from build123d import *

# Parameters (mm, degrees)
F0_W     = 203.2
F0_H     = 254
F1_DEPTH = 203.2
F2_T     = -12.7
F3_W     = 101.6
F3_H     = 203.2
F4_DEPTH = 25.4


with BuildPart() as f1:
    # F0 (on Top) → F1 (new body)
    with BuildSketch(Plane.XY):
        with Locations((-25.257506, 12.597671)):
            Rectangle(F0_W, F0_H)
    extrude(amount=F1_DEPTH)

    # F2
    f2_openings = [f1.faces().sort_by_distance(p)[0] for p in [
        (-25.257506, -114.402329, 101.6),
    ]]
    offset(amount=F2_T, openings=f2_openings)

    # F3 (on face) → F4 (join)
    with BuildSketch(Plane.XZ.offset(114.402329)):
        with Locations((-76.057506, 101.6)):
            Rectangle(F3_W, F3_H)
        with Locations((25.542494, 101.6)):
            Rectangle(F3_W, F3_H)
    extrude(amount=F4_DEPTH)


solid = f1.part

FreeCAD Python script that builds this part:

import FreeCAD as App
import Part
import Sketcher
from FreeCAD import Vector
Q = App.Units.Quantity


def faces_at(feature, points):
    """Names of the faces that lie closest to the given points."""
    faces = feature.Shape.Faces
    near = lambda p: min(range(len(faces)), key=lambda i: faces[i].distToShape(Part.Vertex(*p))[0])
    return sorted({f"Face{near(p) + 1}" for p in points})


def add_polygon(sketch, points):
    """Adds a closed chain of lines whose ends are joined by coincident constraints."""
    first, n = sketch.GeometryCount, len(points)
    for a, b in zip(points, points[1:] + points[:1]):
        sketch.addGeometry(Part.LineSegment(App.Vector(*a, 0), App.Vector(*b, 0)), False)
    for i in range(n):
        sketch.addConstraint(Sketcher.Constraint("Coincident", first + i, 2, first + (i + 1) % n, 1))

doc = App.newDocument("Part")
body = doc.addObject("PartDesign::Body", "Body")

sketch1 = body.newObject("Sketcher::SketchObject", "Sketch")
sketch1.AttachmentSupport = (doc.getObject("XY_Plane"), [""])
sketch1.MapMode = "FlatFace"
add_polygon(sketch1, [(-127, 140), (-127, -114), (76, -114), (76, 140)])
sketch1.addConstraint(Sketcher.Constraint("Vertical", 0))
sketch1.addConstraint(Sketcher.Constraint("Horizontal", 1))
sketch1.addConstraint(Sketcher.Constraint("Vertical", 2))
sketch1.addConstraint(Sketcher.Constraint("Horizontal", 3))
sketch1.addConstraint(Sketcher.Constraint("DistanceX", 1, 1, 1, 2, Q("8 in")))
sketch1.addConstraint(Sketcher.Constraint("DistanceY", 0, 2, 0, 1, Q("10 in")))
sketch1.addConstraint(Sketcher.Constraint("DistanceY", 0, 2, -1, 1, 114.402329))
sketch1.addConstraint(Sketcher.Constraint("DistanceX", 0, 2, -1, 1, 126.857506))
pad1 = body.newObject("PartDesign::Pad", "Pad")
pad1.Profile = sketch1
pad1.Length = Q("8 in")
doc.recompute()

thickness = body.newObject("PartDesign::Thickness", "Thickness")
thickness.Base = (pad1, faces_at(pad1, [(-25.258, -114.402, 101.6)]))
thickness.Value = Q("0.5 in")
thickness.Reversed = True
thickness.Join = "Arc"

sketch2 = body.newObject("Sketcher::SketchObject", "Sketch001")
sketch2.AttachmentSupport = (doc.getObject("XZ_Plane"), [""])
sketch2.MapMode = "FlatFace"
sketch2.AttachmentOffset = App.Placement(Vector(0, 0, 114.402329), App.Rotation())
add_polygon(sketch2, [(-127, 203), (-127, 0), (76, 0), (76, 203)])
sketch2.addConstraint(Sketcher.Constraint("Vertical", 0))
sketch2.addConstraint(Sketcher.Constraint("Horizontal", 1))
sketch2.addConstraint(Sketcher.Constraint("Vertical", 2))
sketch2.addConstraint(Sketcher.Constraint("Horizontal", 3))
sketch2.addConstraint(Sketcher.Constraint("PointOnObject", 0, 2, -1))
sketch2.addConstraint(Sketcher.Constraint("Equal", 3, 0))
sketch2.addConstraint(Sketcher.Constraint("DistanceX", 1, 1, 1, 2, Q("8 in")))
sketch2.addConstraint(Sketcher.Constraint("DistanceX", 0, 2, -1, 1, 126.857506))
pad2 = body.newObject("PartDesign::Pad", "Pad001")
pad2.Profile = sketch2
pad2.Length = Q("1 in")

doc.recompute()
